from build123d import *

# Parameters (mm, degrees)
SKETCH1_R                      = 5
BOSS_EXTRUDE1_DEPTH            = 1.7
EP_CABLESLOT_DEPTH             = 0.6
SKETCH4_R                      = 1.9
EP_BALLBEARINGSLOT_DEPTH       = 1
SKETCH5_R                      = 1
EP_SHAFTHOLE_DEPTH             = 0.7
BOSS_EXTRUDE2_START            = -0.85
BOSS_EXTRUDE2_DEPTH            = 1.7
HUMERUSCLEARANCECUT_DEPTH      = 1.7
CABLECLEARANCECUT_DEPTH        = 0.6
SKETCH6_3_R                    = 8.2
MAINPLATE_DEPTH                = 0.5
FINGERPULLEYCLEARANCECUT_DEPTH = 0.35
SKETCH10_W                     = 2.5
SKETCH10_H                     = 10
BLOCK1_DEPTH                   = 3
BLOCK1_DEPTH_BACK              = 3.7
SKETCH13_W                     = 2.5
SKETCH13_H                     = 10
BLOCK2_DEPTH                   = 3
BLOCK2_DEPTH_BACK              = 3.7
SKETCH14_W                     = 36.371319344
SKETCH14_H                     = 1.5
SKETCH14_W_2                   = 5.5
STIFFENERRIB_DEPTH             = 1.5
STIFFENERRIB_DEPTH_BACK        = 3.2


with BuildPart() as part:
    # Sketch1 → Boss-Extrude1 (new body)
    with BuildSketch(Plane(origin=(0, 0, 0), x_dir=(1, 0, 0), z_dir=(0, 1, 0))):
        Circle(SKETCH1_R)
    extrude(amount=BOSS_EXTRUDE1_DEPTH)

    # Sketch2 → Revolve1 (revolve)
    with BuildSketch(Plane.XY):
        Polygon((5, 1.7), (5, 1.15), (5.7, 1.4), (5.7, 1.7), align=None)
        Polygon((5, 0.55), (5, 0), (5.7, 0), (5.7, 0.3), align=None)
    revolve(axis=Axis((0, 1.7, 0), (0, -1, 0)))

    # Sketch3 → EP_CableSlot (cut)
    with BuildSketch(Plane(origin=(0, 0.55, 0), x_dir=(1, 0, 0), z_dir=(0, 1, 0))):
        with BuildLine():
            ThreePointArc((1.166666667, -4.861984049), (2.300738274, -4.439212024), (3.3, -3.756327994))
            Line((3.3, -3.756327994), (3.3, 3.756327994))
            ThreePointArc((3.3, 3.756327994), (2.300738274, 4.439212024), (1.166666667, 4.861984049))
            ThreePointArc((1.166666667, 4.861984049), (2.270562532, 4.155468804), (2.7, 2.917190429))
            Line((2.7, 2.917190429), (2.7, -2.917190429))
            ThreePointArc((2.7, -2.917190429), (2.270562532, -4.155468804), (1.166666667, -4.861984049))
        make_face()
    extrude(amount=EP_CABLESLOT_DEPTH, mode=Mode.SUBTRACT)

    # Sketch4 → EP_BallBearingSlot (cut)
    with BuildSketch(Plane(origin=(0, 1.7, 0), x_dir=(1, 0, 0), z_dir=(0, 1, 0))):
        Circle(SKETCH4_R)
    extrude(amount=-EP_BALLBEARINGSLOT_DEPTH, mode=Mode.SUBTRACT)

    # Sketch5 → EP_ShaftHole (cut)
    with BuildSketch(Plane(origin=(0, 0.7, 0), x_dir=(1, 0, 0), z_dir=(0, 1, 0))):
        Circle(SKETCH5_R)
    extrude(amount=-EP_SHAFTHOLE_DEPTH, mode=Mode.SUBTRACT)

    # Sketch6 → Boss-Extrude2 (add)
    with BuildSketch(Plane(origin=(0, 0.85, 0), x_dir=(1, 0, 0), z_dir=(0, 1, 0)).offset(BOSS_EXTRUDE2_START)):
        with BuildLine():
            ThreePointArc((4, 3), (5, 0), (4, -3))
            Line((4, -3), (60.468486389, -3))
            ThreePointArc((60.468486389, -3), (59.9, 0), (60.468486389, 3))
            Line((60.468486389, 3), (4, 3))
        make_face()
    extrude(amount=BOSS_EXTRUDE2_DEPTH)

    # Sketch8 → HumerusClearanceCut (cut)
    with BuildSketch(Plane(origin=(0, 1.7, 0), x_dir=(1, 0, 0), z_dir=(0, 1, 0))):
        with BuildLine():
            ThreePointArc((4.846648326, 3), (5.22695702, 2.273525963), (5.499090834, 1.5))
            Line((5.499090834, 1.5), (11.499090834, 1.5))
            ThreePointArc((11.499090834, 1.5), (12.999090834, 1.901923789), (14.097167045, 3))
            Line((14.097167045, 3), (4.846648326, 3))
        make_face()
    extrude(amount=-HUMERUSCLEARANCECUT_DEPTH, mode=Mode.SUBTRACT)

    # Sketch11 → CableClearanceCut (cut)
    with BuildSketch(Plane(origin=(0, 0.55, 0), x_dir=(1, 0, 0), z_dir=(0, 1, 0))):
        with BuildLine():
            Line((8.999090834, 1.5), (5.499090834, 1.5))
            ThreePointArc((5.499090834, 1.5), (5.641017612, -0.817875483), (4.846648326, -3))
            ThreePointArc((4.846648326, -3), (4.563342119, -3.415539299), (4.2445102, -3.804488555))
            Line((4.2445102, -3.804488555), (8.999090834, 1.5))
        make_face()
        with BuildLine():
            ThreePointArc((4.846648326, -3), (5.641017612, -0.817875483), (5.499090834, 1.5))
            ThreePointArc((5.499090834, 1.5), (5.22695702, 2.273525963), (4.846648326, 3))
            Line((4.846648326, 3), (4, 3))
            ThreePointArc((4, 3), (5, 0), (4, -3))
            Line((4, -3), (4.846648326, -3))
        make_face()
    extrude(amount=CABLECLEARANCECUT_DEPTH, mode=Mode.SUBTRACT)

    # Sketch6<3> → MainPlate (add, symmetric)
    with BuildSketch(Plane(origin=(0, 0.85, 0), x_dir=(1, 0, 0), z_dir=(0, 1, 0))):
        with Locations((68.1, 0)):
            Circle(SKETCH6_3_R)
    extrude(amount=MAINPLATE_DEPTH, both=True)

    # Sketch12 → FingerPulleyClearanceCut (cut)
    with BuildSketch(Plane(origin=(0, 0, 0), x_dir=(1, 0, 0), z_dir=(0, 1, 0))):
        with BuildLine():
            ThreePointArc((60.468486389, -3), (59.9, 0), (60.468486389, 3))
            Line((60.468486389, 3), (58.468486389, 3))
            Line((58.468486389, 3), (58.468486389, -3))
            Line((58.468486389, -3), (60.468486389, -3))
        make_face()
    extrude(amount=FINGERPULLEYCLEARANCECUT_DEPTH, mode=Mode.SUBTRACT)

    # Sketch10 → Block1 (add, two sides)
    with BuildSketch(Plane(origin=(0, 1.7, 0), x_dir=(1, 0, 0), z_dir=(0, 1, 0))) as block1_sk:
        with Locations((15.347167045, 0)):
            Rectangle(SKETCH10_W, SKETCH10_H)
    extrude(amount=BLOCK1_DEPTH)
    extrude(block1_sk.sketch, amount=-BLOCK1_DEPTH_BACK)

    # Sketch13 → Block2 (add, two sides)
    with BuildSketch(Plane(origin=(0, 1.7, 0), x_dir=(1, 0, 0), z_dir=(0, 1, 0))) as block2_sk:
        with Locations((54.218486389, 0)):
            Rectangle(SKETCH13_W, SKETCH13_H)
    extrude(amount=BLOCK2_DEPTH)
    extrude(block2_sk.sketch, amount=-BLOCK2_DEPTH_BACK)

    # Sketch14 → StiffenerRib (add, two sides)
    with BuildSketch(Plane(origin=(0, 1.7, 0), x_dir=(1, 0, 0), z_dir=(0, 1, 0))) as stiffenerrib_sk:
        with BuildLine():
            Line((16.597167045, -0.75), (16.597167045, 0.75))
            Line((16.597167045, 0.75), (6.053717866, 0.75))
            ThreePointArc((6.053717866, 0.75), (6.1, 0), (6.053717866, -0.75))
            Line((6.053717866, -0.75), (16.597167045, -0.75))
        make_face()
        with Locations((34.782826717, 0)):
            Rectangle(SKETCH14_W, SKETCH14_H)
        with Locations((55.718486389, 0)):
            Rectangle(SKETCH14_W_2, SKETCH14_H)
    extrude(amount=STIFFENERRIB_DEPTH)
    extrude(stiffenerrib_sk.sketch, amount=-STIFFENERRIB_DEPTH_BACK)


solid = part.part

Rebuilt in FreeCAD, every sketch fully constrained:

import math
import FreeCAD as App
import Part
import Sketcher
from FreeCAD import Vector
Q = App.Units.Quantity

doc = App.newDocument("Part")
body = doc.addObject("PartDesign::Body", "Body")

# Sketch on XZ plane
sketch1 = doc.addObject("Sketcher::SketchObject", "Sketch")
body.addObject(sketch1)
sketch1.AttachmentSupport = (doc.XZ_Plane, [""])
sketch1.MapMode = "FlatFace"
sketch1.addGeometry(Part.Circle(Vector(0, 0, 0), Vector(0, 0, 1), 5), False)
sketch1.addConstraint([
    Sketcher.Constraint("Coincident", 0, 3, -1, 1),
    Sketcher.Constraint("Diameter", 0, Q("10 mm")),
])
pad1 = doc.addObject("PartDesign::Pad", "Pad")
body.addObject(pad1)
pad1.Profile = sketch1
pad1.Length = 1.7
pad1.Reversed = True

# Sketch on XY plane
sketch2 = doc.addObject("Sketcher::SketchObject", "Sketch001")
body.addObject(sketch2)
sketch2.AttachmentSupport = (doc.XY_Plane, [""])
sketch2.MapMode = "FlatFace"
sketch2.addGeometry([
    Part.LineSegment(Vector(5, 1.7, 0), Vector(5, 1.15, 0)),  # 0
    Part.LineSegment(Vector(5, 1.15, 0), Vector(5.7, 1.4, 0)),  # 1
    Part.LineSegment(Vector(5.7, 1.4, 0), Vector(5.7, 1.7, 0)),  # 2
    Part.LineSegment(Vector(5.7, 1.7, 0), Vector(5, 1.7, 0)),  # 3
    Part.LineSegment(Vector(5, 0.55, 0), Vector(5, 0, 0)),  # 4
    Part.LineSegment(Vector(5, 0, 0), Vector(5.7, 0, 0)),  # 5
    Part.LineSegment(Vector(5.7, 0, 0), Vector(5.7, 0.3, 0)),  # 6
    Part.LineSegment(Vector(5.7, 0.3, 0), Vector(5, 0.55, 0)),  # 7
], False)
sketch2.addConstraint([
    Sketcher.Constraint("Coincident", 0, 2, 1, 1),
    Sketcher.Constraint("Coincident", 1, 2, 2, 1),
    Sketcher.Constraint("Coincident", 2, 2, 3, 1),
    Sketcher.Constraint("Coincident", 3, 2, 0, 1),
    Sketcher.Constraint("Coincident", 4, 2, 5, 1),
    Sketcher.Constraint("Coincident", 5, 2, 6, 1),
    Sketcher.Constraint("Coincident", 6, 2, 7, 1),
    Sketcher.Constraint("Coincident", 7, 2, 4, 1),
    Sketcher.Constraint("Vertical", 0),
    Sketcher.Constraint("Vertical", 2),
    Sketcher.Constraint("Horizontal", 3),
    Sketcher.Constraint("Vertical", 4),
    Sketcher.Constraint("Horizontal", 5),
    Sketcher.Constraint("Vertical", 6),
    Sketcher.Constraint("PointOnObject", 4, 2, -1),
    Sketcher.Constraint("Vertical", 3, 2, 4, 2),
    Sketcher.Constraint("Vertical", 2, 2, 5, 2),
    Sketcher.Constraint("Equal", 0, 4),
    Sketcher.Constraint("Equal", 2, 6),
    Sketcher.Constraint("DistanceX", 3, 2, 3, 1, Q("0.7 mm")),
    Sketcher.Constraint("DistanceY", 2, 1, 2, 2, Q("0.3 mm")),
    Sketcher.Constraint("DistanceX", -1, 1, 0, 2, Q("5 mm")),
    Sketcher.Constraint("DistanceY", 0, 2, 0, 1, Q("0.55 mm")),
    Sketcher.Constraint("DistanceY", -1, 1, 1, 2, Q("1.4 mm")),
])
revolution = doc.addObject("PartDesign::Revolution", "Revolution")
body.addObject(revolution)
revolution.Profile = sketch2
revolution.ReferenceAxis = (sketch2, ["V_Axis"])
revolution.Angle = 360

# Sketch on XZ plane
sketch3 = doc.addObject("Sketcher::SketchObject", "Sketch002")
body.addObject(sketch3)
sketch3.AttachmentSupport = (doc.XZ_Plane, [""])
sketch3.MapMode = "FlatFace"
sketch3.AttachmentOffset = App.Placement(Vector(0, 0, -0.55), App.Rotation())
sketch3.addGeometry([
    Part.ArcOfCircle(Part.Circle(Vector(0, 0, 0), Vector(0, 0, 1), 5), math.radians(49), math.radians(77)),  # 0
    Part.LineSegment(Vector(3.3, 3.8, 0), Vector(3.3, -3.8, 0)),  # 1
    Part.ArcOfCircle(Part.Circle(Vector(0, 0, 0), Vector(0, 0, 1), 5), math.radians(-77), math.radians(-49)),  # 2
    Part.ArcOfCircle(Part.Circle(Vector(0.7, -2.9, 0), Vector(0, 0, 1), 2), math.radians(-77), math.radians(0)),  # 3
    Part.LineSegment(Vector(2.7, -2.9, 0), Vector(2.7, 2.9, 0)),  # 4
    Part.ArcOfCircle(Part.Circle(Vector(0.7, 2.9, 0), Vector(0, 0, 1), 2), math.radians(0), math.radians(77)),  # 5
], False)
sketch3.addConstraint([
    Sketcher.Constraint("Coincident", 0, 1, 1, 1),
    Sketcher.Constraint("Coincident", 1, 2, 2, 2),
    Sketcher.Constraint("Tangent", 2, 1, 3, 1),
    Sketcher.Constraint("Tangent", 3, 2, 4, 1),
    Sketcher.Constraint("Tangent", 4, 2, 5, 1),
    Sketcher.Constraint("Tangent", 5, 2, 0, 2),
    Sketcher.Constraint("Vertical", 1),
    Sketcher.Constraint("Vertical", 4),
    Sketcher.Constraint("Coincident", 0, 3, -1, 1),
    Sketcher.Constraint("Coincident", 2, 3, -1, 1),
    Sketcher.Constraint("Equal", 0, 2),
    Sketcher.Constraint("Equal", 3, 5),
    Sketcher.Constraint("Radius", 0, Q("5 mm")),
    Sketcher.Constraint("Radius", 3, Q("2 mm")),
    Sketcher.Constraint("DistanceX", -1, 1, 3, 3, Q("0.7 mm")),
    Sketcher.Constraint("DistanceX", -1, 1, 0, 1, Q("3.3 mm")),
])
pocket1 = doc.addObject("PartDesign::Pocket", "Pocket")
body.addObject(pocket1)
pocket1.Profile = sketch3
pocket1.Length = 0.6

# Sketch on XZ plane
sketch4 = doc.addObject("Sketcher::SketchObject", "Sketch003")
body.addObject(sketch4)
sketch4.AttachmentSupport = (doc.XZ_Plane, [""])
sketch4.MapMode = "FlatFace"
sketch4.AttachmentOffset = App.Placement(Vector(0, 0, -1.7), App.Rotation())
sketch4.addGeometry(Part.Circle(Vector(0, 0, 0), Vector(0, 0, 1), 1.9), False)
sketch4.addConstraint([
    Sketcher.Constraint("Coincident", 0, 3, -1, 1),
    Sketcher.Constraint("Diameter", 0, Q("3.8 mm")),
])
pocket2 = doc.addObject("PartDesign::Pocket", "Pocket001")
body.addObject(pocket2)
pocket2.Profile = sketch4
pocket2.Length = 1
pocket2.Reversed = True

# Sketch on XZ plane
sketch5 = doc.addObject("Sketcher::SketchObject", "Sketch004")
body.addObject(sketch5)
sketch5.AttachmentSupport = (doc.XZ_Plane, [""])
sketch5.MapMode = "FlatFace"
sketch5.AttachmentOffset = App.Placement(Vector(0, 0, -0.7), App.Rotation())
sketch5.addGeometry(Part.Circle(Vector(0, 0, 0), Vector(0, 0, 1), 1), False)
sketch5.addConstraint([
    Sketcher.Constraint("Coincident", 0, 3, -1, 1),
    Sketcher.Constraint("Diameter", 0, Q("2 mm")),
])
pocket3 = doc.addObject("PartDesign::Pocket", "Pocket002")
body.addObject(pocket3)
pocket3.Profile = sketch5
pocket3.Length = 0.7
pocket3.Reversed = True

# Sketch on XZ plane
sketch6 = doc.addObject("Sketcher::SketchObject", "Sketch005")
body.addObject(sketch6)
sketch6.AttachmentSupport = (doc.XZ_Plane, [""])
sketch6.MapMode = "FlatFace"
sketch6.addGeometry([
    Part.ArcOfCircle(Part.Circle(Vector(0, 0, 0), Vector(0, 0, 1), 5), math.radians(-37), math.radians(37)),
    Part.LineSegment(Vector(4, 3, 0), Vector(60, 3, 0)),
    Part.ArcOfCircle(Part.Circle(Vector(68, 0, 0), Vector(0, 0, 1), 8), math.radians(159), math.radians(201)),
    Part.LineSegment(Vector(60, -3, 0), Vector(4, -3, 0)),
], False)
sketch6.addConstraint([
    Sketcher.Constraint("Coincident", 0, 2, 1, 1),
    Sketcher.Constraint("Coincident", 1, 2, 2, 1),
    Sketcher.Constraint("Coincident", 2, 2, 3, 1),
    Sketcher.Constraint("Coincident", 3, 2, 0, 1),
    Sketcher.Constraint("Horizontal", 1),
    Sketcher.Constraint("Horizontal", 3),
    Sketcher.Constraint("Coincident", 0, 3, -1, 1),
    Sketcher.Constraint("Symmetric", 1, 2, 2, 2, -1),
    Sketcher.Constraint("Radius", 0, Q("5 mm")),
    Sketcher.Constraint("Radius", 2, Q("8.2 mm")),
    Sketcher.Constraint("DistanceX", -1, 1, 0, 2, Q("4 mm")),
    Sketcher.Constraint("DistanceX", -1, 1, 2, 3, Q("68.1 mm")),
])
pad2 = doc.addObject("PartDesign::Pad", "Pad001")
body.addObject(pad2)
pad2.Profile = sketch6
pad2.Length = 1.7
pad2.Reversed = True

# Sketch on XZ plane
sketch7 = doc.addObject("Sketcher::SketchObject", "Sketch006")
body.addObject(sketch7)
sketch7.AttachmentSupport = (doc.XZ_Plane, [""])
sketch7.MapMode = "FlatFace"
sketch7.AttachmentOffset = App.Placement(Vector(0, 0, -1.7), App.Rotation())
sketch7.addGeometry([
    Part.ArcOfCircle(Part.Circle(Vector(0, 0, 0), Vector(0, 0, 1), 5.7), math.radians(-31.76), math.radians(-15.26)),
    Part.LineSegment(Vector(5.5, -1.5, 0), Vector(11.5, -1.5, 0)),
    Part.ArcOfCircle(Part.Circle(Vector(11.5, -4.5, 0), Vector(0, 0, 1), 3), math.radians(30), math.radians(90)),
    Part.LineSegment(Vector(14.1, -3, 0), Vector(4.8, -3, 0)),
], False)
sketch7.addConstraint([
    Sketcher.Constraint("Coincident", 0, 2, 1, 1),
    Sketcher.Constraint("Tangent", 1, 2, 2, 2),
    Sketcher.Constraint("Coincident", 2, 1, 3, 1),
    Sketcher.Constraint("Coincident", 3, 2, 0, 1),
    Sketcher.Constraint("Horizontal", 1),
    Sketcher.Constraint("Horizontal", 3),
    Sketcher.Constraint("Coincident", 0, 3, -1, 1),
    Sketcher.Constraint("Radius", 2, Q("3 mm")),
    Sketcher.Constraint("Radius", 0, Q("5.7 mm")),
    Sketcher.Constraint("DistanceX", 1, 1, 1, 2, Q("6 mm")),
    Sketcher.Constraint("DistanceY", 2, 1, -1, 1, Q("3 mm")),
    Sketcher.Constraint("DistanceY", 2, 3, -1, 1, Q("4.5 mm")),
])
pocket4 = doc.addObject("PartDesign::Pocket", "Pocket003")
body.addObject(pocket4)
pocket4.Profile = sketch7
pocket4.Length = 1.7
pocket4.Reversed = True

# Sketch on XZ plane
sketch8 = doc.addObject("Sketcher::SketchObject", "Sketch007")
body.addObject(sketch8)
sketch8.AttachmentSupport = (doc.XZ_Plane, [""])
sketch8.MapMode = "FlatFace"
sketch8.AttachmentOffset = App.Placement(Vector(0, 0, -0.55), App.Rotation())
sketch8.addGeometry([
    Part.LineSegment(Vector(9, -1.5, 0), Vector(5.5, -1.5, 0)),  # 0
    Part.ArcOfCircle(Part.Circle(Vector(0, 0, 0), Vector(0, 0, 1), 5.7), math.radians(-31.76), math.radians(-15.26)),  # 1
    Part.LineSegment(Vector(4.8, -3, 0), Vector(4, -3, 0)),  # 2
    Part.ArcOfCircle(Part.Circle(Vector(0, 0, 0), Vector(0, 0, 1), 5), math.radians(-37), math.radians(37)),  # 3
    Part.LineSegment(Vector(4, 3, 0), Vector(4.8, 3, 0)),  # 4
    Part.ArcOfCircle(Part.Circle(Vector(0, 0, 0), Vector(0, 0, 1), 5.7), math.radians(31.76), math.radians(41.87)),  # 5
    Part.LineSegment(Vector(4.2, 3.8, 0), Vector(9, -1.5, 0)),  # 6
], False)
sketch8.addConstraint([
    Sketcher.Constraint("Coincident", 0, 2, 1, 2),
    Sketcher.Constraint("Coincident", 1, 1, 2, 1),
    Sketcher.Constraint("Coincident", 2, 2, 3, 1),
    Sketcher.Constraint("Coincident", 3, 2, 4, 1),
    Sketcher.Constraint("Coincident", 4, 2, 5, 1),
    Sketcher.Constraint("Tangent", 5, 2, 6, 1),
    Sketcher.Constraint("Coincident", 6, 2, 0, 1),
    Sketcher.Constraint("Horizontal", 0),
    Sketcher.Constraint("Horizontal", 2),
    Sketcher.Constraint("Horizontal", 4),
    Sketcher.Constraint("Coincident", 1, 3, -1, 1),
    Sketcher.Constraint("Coincident", 3, 3, -1, 1),
    Sketcher.Constraint("Coincident", 5, 3, -1, 1),
    Sketcher.Constraint("Equal", 1, 5),
    Sketcher.Constraint("Vertical", 2, 2, 3, 2),
    Sketcher.Constraint("Radius", 3, Q("5 mm")),
    Sketcher.Constraint("Radius", 1, Q("5.7 mm")),
    Sketcher.Constraint("DistanceX", 0, 2, 0, 1, Q("3.5 mm")),
    Sketcher.Constraint("DistanceY", 1, 1, -1, 1, Q("3 mm")),
    Sketcher.Constraint("DistanceY", 0, 2, -1, 1, Q("1.5 mm")),
])
pocket5 = doc.addObject("PartDesign::Pocket", "Pocket004")
body.addObject(pocket5)
pocket5.Profile = sketch8
pocket5.Length = 0.6

# Sketch on XZ plane
sketch9 = doc.addObject("Sketcher::SketchObject", "Sketch008")
body.addObject(sketch9)
sketch9.AttachmentSupport = (doc.XZ_Plane, [""])
sketch9.MapMode = "FlatFace"
sketch9.AttachmentOffset = App.Placement(Vector(0, 0, -0.85), App.Rotation())
sketch9.addGeometry(Part.Circle(Vector(68, 0, 0), Vector(0, 0, 1), 8), False)
sketch9.addConstraint([
    Sketcher.Constraint("PointOnObject", 0, 3, -1),
    Sketcher.Constraint("Diameter", 0, Q("16.4 mm")),
    Sketcher.Constraint("DistanceX", -1, 1, 0, 3, Q("68.1 mm")),
])
pad3 = doc.addObject("PartDesign::Pad", "Pad002")
body.addObject(pad3)
pad3.Profile = sketch9
pad3.Length = 1
pad3.Midplane = True

# Sketch on XZ plane
sketch10 = doc.addObject("Sketcher::SketchObject", "Sketch009")
body.addObject(sketch10)
sketch10.AttachmentSupport = (doc.XZ_Plane, [""])
sketch10.MapMode = "FlatFace"
sketch10.addGeometry([
    Part.ArcOfCircle(Part.Circle(Vector(68.1, 0, 0), Vector(0, 0, 1), 8.2), math.radians(159), math.radians(201)),
    Part.LineSegment(Vector(60.5, -3, 0), Vector(58.5, -3, 0)),
    Part.LineSegment(Vector(58.5, -3, 0), Vector(58.5, 3, 0)),
    Part.LineSegment(Vector(58.5, 3, 0), Vector(60.5, 3, 0)),
], False)
sketch10.addConstraint([
    Sketcher.Constraint("Coincident", 0, 2, 1, 1),
    Sketcher.Constraint("Coincident", 1, 2, 2, 1),
    Sketcher.Constraint("Coincident", 2, 2, 3, 1),
    Sketcher.Constraint("Coincident", 3, 2, 0, 1),
    Sketcher.Constraint("Horizontal", 1),
    Sketcher.Constraint("Vertical", 2),
    Sketcher.Constraint("Horizontal", 3),
    Sketcher.Constraint("Symmetric", 0, 2, 3, 2, -1),
    Sketcher.Constraint("Radius", 0, Q("8.2 mm")),
    Sketcher.Constraint("DistanceX", 1, 2, 1, 1, Q("2 mm")),
    Sketcher.Constraint("DistanceY", 2, 1, 2, 2, Q("6 mm")),
    Sketcher.Constraint("DistanceX", -1, 1, 0, 3, Q("68.1 mm")),
])
pocket6 = doc.addObject("PartDesign::Pocket", "Pocket005")
body.addObject(pocket6)
pocket6.Profile = sketch10
pocket6.Length = 0.35

# Sketch on XZ plane
sketch11 = doc.addObject("Sketcher::SketchObject", "Sketch010")
body.addObject(sketch11)
sketch11.AttachmentSupport = (doc.XZ_Plane, [""])
sketch11.MapMode = "FlatFace"
sketch11.AttachmentOffset = App.Placement(Vector(0, 0, -1.7), App.Rotation())
sketch11.addGeometry([
    Part.LineSegment(Vector(14.1, -5, 0), Vector(14.1, 5, 0)),
    Part.LineSegment(Vector(14.1, 5, 0), Vector(16.6, 5, 0)),
    Part.LineSegment(Vector(16.6, 5, 0), Vector(16.6, -5, 0)),
    Part.LineSegment(Vector(16.6, -5, 0), Vector(14.1, -5, 0)),
], False)
sketch11.addConstraint([
    Sketcher.Constraint("Coincident", 0, 2, 1, 1),
    Sketcher.Constraint("Coincident", 1, 2, 2, 1),
    Sketcher.Constraint("Coincident", 2, 2, 3, 1),
    Sketcher.Constraint("Coincident", 3, 2, 0, 1),
    Sketcher.Constraint("Vertical", 0),
    Sketcher.Constraint("Horizontal", 1),
    Sketcher.Constraint("Vertical", 2),
    Sketcher.Constraint("Horizontal", 3),
    Sketcher.Constraint("DistanceY", 0, 1, 0, 2, Q("10 mm")),
    Sketcher.Constraint("DistanceX", 1, 1, 1, 2, Q("2.5 mm")),
    Sketcher.Constraint("DistanceY", -1, 1, 0, 2, Q("5 mm")),
    Sketcher.Constraint("DistanceX", -1, 1, 0, 2, Q("14.097167 mm")),
])
pad4 = doc.addObject("PartDesign::Pad", "Pad003")
body.addObject(pad4)
pad4.Profile = sketch11
pad4.Type = "TwoLengths"
pad4.Length = 3
pad4.Length2 = 3.7
pad4.Reversed = True

# Sketch on XZ plane
sketch12 = doc.addObject("Sketcher::SketchObject", "Sketch011")
body.addObject(sketch12)
sketch12.AttachmentSupport = (doc.XZ_Plane, [""])
sketch12.MapMode = "FlatFace"
sketch12.AttachmentOffset = App.Placement(Vector(0, 0, -1.7), App.Rotation())
sketch12.addGeometry([
    Part.LineSegment(Vector(53, -5, 0), Vector(53, 5, 0)),
    Part.LineSegment(Vector(53, 5, 0), Vector(55.5, 5, 0)),
    Part.LineSegment(Vector(55.5, 5, 0), Vector(55.5, -5, 0)),
    Part.LineSegment(Vector(55.5, -5, 0), Vector(53, -5, 0)),
], False)
sketch12.addConstraint([
    Sketcher.Constraint("Coincident", 0, 2, 1, 1),
    Sketcher.Constraint("Coincident", 1, 2, 2, 1),
    Sketcher.Constraint("Coincident", 2, 2, 3, 1),
    Sketcher.Constraint("Coincident", 3, 2, 0, 1),
    Sketcher.Constraint("Vertical", 0),
    Sketcher.Constraint("Horizontal", 1),
    Sketcher.Constraint("Vertical", 2),
    Sketcher.Constraint("Horizontal", 3),
    Sketcher.Constraint("DistanceY", 0, 1, 0, 2, Q("10 mm")),
    Sketcher.Constraint("DistanceX", 1, 1, 1, 2, Q("2.5 mm")),
    Sketcher.Constraint("DistanceY", -1, 1, 0, 2, Q("5 mm")),
    Sketcher.Constraint("DistanceX", -1, 1, 0, 2, Q("52.968486 mm")),
])
pad5 = doc.addObject("PartDesign::Pad", "Pad004")
body.addObject(pad5)
pad5.Profile = sketch12
pad5.Type = "TwoLengths"
pad5.Length = 3
pad5.Length2 = 3.7
pad5.Reversed = True

# Sketch on XZ plane
sketch13 = doc.addObject("Sketcher::SketchObject", "Sketch012")
body.addObject(sketch13)
sketch13.AttachmentSupport = (doc.XZ_Plane, [""])
sketch13.MapMode = "FlatFace"
sketch13.AttachmentOffset = App.Placement(Vector(0, 0, -1.7), App.Rotation())
sketch13.addGeometry([
    Part.ArcOfCircle(Part.Circle(Vector(0, 0, 0), Vector(0, 0, 1), 6.1), math.radians(-7.06), math.radians(7.06)),
    Part.LineSegment(Vector(6.1, 0.8, 0), Vector(58.5, 0.8, 0)),
    Part.LineSegment(Vector(58.5, 0.8, 0), Vector(58.5, -0.8, 0)),
    Part.LineSegment(Vector(58.5, -0.8, 0), Vector(6.1, -0.8, 0)),
], False)
sketch13.addConstraint([
    Sketcher.Constraint("Coincident", 0, 2, 1, 1),
    Sketcher.Constraint("Coincident", 1, 2, 2, 1),
    Sketcher.Constraint("Coincident", 2, 2, 3, 1),
    Sketcher.Constraint("Coincident", 3, 2, 0, 1),
    Sketcher.Constraint("Horizontal", 1),
    Sketcher.Constraint("Vertical", 2),
    Sketcher.Constraint("Horizontal", 3),
    Sketcher.Constraint("Coincident", 0, 3, -1, 1),
    Sketcher.Constraint("Vertical", 0, 2, 3, 2),
    Sketcher.Constraint("Radius", 0, Q("6.1 mm")),
    Sketcher.Constraint("DistanceY", 2, 2, 2, 1, Q("1.5 mm")),
    Sketcher.Constraint("DistanceX", 1, 1, 1, 2, Q("52.414769 mm")),
])
pad6 = doc.addObject("PartDesign::Pad", "Pad005")
body.addObject(pad6)
pad6.Profile = sketch13
pad6.Type = "TwoLengths"
pad6.Length = 1.5
pad6.Length2 = 3.2
pad6.Reversed = True

doc.recompute()
